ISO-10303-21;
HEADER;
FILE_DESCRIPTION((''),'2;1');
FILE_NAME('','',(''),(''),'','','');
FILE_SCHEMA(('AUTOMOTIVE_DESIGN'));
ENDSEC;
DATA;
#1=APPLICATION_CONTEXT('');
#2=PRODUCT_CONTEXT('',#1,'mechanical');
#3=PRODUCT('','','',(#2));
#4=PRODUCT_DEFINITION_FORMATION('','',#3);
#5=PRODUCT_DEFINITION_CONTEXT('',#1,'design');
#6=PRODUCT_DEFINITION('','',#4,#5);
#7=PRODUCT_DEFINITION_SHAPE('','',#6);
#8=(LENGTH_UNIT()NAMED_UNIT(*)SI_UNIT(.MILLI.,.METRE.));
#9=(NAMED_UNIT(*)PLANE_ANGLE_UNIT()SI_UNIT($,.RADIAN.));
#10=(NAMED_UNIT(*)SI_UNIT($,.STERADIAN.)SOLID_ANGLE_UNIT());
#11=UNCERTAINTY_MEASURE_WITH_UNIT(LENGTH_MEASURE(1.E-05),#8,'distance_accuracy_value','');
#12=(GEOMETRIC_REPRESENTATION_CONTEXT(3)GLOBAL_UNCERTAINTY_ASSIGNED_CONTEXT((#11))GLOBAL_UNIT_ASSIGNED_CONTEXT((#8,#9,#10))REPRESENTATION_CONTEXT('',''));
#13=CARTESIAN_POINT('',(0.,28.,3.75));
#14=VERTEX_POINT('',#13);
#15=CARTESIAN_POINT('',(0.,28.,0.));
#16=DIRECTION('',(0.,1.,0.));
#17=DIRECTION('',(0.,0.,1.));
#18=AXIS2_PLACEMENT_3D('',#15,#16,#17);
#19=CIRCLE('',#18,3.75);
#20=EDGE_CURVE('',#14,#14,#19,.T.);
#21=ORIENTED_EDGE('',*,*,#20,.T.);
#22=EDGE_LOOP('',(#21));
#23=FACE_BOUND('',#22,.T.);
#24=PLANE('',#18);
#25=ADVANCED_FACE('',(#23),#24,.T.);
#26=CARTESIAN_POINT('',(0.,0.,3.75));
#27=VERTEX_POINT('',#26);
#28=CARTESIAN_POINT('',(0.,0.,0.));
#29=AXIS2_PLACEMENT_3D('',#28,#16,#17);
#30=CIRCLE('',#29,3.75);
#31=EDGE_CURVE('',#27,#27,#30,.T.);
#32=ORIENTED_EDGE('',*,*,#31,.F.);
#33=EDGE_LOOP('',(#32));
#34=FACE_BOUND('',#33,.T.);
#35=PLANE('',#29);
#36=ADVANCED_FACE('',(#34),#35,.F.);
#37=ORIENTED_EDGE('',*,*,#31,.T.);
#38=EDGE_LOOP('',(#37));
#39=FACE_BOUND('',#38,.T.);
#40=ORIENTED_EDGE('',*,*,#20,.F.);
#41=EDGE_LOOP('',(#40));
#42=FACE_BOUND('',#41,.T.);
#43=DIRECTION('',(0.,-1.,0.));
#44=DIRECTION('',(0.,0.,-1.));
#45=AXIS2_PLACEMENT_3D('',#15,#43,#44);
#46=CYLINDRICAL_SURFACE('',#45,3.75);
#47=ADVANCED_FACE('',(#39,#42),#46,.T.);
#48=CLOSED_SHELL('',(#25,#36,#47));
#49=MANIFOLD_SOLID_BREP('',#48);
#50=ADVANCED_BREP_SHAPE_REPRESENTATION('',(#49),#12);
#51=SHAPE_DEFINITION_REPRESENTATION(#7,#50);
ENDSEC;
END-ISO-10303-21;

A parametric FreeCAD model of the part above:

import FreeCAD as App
import Part
import Sketcher

V = App.Vector
Q = App.Units.Quantity

doc = App.newDocument("Part")
body = doc.addObject("PartDesign::Body", "Body")

sketch1 = body.newObject("Sketcher::SketchObject", "Sketch")
sketch1.AttachmentSupport = (doc.getObject("XZ_Plane"), [""])
sketch1.MapMode = "FlatFace"
sketch1.addGeometry(Part.Circle(V(0, 0, 0), V(0, 0, 1), 3.8), False)
sketch1.addConstraint(Sketcher.Constraint("Coincident", 0, 3, -1, 1))
sketch1.addConstraint(Sketcher.Constraint("Diameter", 0, Q("7.5 mm")))
pad1 = body.newObject("PartDesign::Pad", "Pad")
pad1.Profile = sketch1
pad1.Length = 28
pad1.Reversed = True

doc.recompute()
